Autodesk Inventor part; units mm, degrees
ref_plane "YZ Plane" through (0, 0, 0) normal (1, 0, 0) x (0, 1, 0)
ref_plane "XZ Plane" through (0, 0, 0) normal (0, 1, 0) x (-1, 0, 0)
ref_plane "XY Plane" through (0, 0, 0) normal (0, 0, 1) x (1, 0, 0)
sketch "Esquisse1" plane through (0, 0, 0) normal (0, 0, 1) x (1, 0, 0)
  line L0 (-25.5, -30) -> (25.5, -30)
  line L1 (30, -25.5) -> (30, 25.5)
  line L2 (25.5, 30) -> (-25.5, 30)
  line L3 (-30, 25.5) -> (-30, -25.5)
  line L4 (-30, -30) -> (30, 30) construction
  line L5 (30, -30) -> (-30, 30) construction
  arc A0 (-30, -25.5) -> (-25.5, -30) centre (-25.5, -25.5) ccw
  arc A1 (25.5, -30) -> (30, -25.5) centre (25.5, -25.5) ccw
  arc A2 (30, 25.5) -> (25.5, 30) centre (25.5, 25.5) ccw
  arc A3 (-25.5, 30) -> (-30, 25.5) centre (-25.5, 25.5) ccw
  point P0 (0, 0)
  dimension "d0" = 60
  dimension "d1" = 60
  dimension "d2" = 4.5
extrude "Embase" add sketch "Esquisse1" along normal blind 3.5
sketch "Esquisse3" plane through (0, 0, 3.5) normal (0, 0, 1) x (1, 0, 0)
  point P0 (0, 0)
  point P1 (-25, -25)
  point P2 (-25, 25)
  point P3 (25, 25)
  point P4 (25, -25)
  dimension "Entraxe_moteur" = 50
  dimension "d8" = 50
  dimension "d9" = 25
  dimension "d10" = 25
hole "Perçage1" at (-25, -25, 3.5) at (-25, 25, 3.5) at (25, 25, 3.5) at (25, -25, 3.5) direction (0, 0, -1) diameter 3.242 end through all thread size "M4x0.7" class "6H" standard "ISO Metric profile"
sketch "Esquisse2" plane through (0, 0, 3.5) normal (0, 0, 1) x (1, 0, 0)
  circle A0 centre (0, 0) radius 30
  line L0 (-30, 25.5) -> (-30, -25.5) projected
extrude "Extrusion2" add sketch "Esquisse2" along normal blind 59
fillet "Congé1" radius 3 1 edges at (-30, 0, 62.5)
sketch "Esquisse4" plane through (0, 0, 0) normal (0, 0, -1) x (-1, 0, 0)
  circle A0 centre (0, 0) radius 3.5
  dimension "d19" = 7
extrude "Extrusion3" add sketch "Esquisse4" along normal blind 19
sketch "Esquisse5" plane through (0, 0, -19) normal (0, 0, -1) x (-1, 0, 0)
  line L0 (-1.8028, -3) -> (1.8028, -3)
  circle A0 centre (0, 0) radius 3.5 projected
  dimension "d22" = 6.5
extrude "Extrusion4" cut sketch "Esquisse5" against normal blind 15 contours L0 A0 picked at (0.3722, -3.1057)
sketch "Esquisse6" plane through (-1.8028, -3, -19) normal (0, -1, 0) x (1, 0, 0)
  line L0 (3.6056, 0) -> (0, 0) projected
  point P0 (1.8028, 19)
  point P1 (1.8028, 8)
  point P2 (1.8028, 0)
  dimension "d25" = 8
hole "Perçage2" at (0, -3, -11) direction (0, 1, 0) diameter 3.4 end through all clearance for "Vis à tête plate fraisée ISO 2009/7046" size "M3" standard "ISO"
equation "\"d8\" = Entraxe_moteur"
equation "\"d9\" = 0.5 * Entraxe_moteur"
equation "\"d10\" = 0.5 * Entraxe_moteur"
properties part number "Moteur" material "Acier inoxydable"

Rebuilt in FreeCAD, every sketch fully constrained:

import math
import FreeCAD as App
import Part
import Sketcher

V = App.Vector
Q = App.Units.Quantity


def edges_at(feature, points):
    """Names of the edges that pass closest to the given points."""
    edges = feature.Shape.Edges
    near = lambda p: min(range(len(edges)), key=lambda i: edges[i].distToShape(Part.Vertex(*p))[0])
    return sorted({f"Edge{near(p) + 1}" for p in points})

doc = App.newDocument("Part")
body = doc.addObject("PartDesign::Body", "Body")

sketch1 = body.newObject("Sketcher::SketchObject", "Sketch")
sketch1.AttachmentSupport = (doc.getObject("XY_Plane"), [""])
sketch1.MapMode = "FlatFace"
sketch1.addGeometry(Part.ArcOfCircle(Part.Circle(V(-25.5, -25.5, 0), V(0, 0, 1), 4.5), math.radians(180), math.radians(270)), False)
sketch1.addGeometry(Part.LineSegment(V(-25.5, -30, 0), V(25.5, -30, 0)), False)
sketch1.addGeometry(Part.ArcOfCircle(Part.Circle(V(25.5, -25.5, 0), V(0, 0, 1), 4.5), math.radians(-90), math.radians(0)), False)
sketch1.addGeometry(Part.LineSegment(V(30, -25.5, 0), V(30, 25.5, 0)), False)
sketch1.addGeometry(Part.ArcOfCircle(Part.Circle(V(25.5, 25.5, 0), V(0, 0, 1), 4.5), math.radians(0), math.radians(90)), False)
sketch1.addGeometry(Part.LineSegment(V(25.5, 30, 0), V(-25.5, 30, 0)), False)
sketch1.addGeometry(Part.ArcOfCircle(Part.Circle(V(-25.5, 25.5, 0), V(0, 0, 1), 4.5), math.radians(90), math.radians(180)), False)
sketch1.addGeometry(Part.LineSegment(V(-30, 25.5, 0), V(-30, -25.5, 0)), False)
sketch1.addConstraint(Sketcher.Constraint("Tangent", 0, 2, 1, 1))
sketch1.addConstraint(Sketcher.Constraint("Tangent", 1, 2, 2, 1))
sketch1.addConstraint(Sketcher.Constraint("Tangent", 2, 2, 3, 1))
sketch1.addConstraint(Sketcher.Constraint("Tangent", 3, 2, 4, 1))
sketch1.addConstraint(Sketcher.Constraint("Tangent", 4, 2, 5, 1))
sketch1.addConstraint(Sketcher.Constraint("Tangent", 5, 2, 6, 1))
sketch1.addConstraint(Sketcher.Constraint("Tangent", 6, 2, 7, 1))
sketch1.addConstraint(Sketcher.Constraint("Tangent", 7, 2, 0, 1))
sketch1.addConstraint(Sketcher.Constraint("Horizontal", 1))
sketch1.addConstraint(Sketcher.Constraint("Vertical", 3))
sketch1.addConstraint(Sketcher.Constraint("Horizontal", 5))
sketch1.addConstraint(Sketcher.Constraint("Vertical", 7))
sketch1.addConstraint(Sketcher.Constraint("Equal", 0, 2))
sketch1.addConstraint(Sketcher.Constraint("Equal", 2, 4))
sketch1.addConstraint(Sketcher.Constraint("Equal", 4, 6))
sketch1.addConstraint(Sketcher.Constraint("Symmetric", 0, 3, 4, 3, -1, 1))
sketch1.addConstraint(Sketcher.Constraint("Equal", 5, 3))
sketch1.addConstraint(Sketcher.Constraint("Radius", 0, Q("4.5 mm")))
sketch1.addConstraint(Sketcher.Constraint("DistanceX", 1, 1, 1, 2, Q("51 mm")))
pad1 = body.newObject("PartDesign::Pad", "Pad")
pad1.Profile = sketch1
pad1.Length = 3.5

sketch2 = body.newObject("Sketcher::SketchObject", "Sketch001")
sketch2.AttachmentSupport = (doc.getObject("XY_Plane"), [""])
sketch2.MapMode = "FlatFace"
sketch2.AttachmentOffset = App.Placement(V(0, 0, 3.5), App.Rotation())
sketch2.addGeometry(Part.Circle(V(-25, -25, 0), V(0, 0, 1), 1.6), False)
sketch2.addGeometry(Part.Circle(V(-25, 25, 0), V(0, 0, 1), 1.6), False)
sketch2.addGeometry(Part.Circle(V(25, 25, 0), V(0, 0, 1), 1.6), False)
sketch2.addGeometry(Part.Circle(V(25, -25, 0), V(0, 0, 1), 1.6), False)
sketch2.addConstraint(Sketcher.Constraint("Equal", 0, 1))
sketch2.addConstraint(Sketcher.Constraint("Equal", 1, 2))
sketch2.addConstraint(Sketcher.Constraint("Equal", 2, 3))
sketch2.addConstraint(Sketcher.Constraint("Symmetric", 0, 3, 2, 3, -1, 1))
sketch2.addConstraint(Sketcher.Constraint("Symmetric", 1, 3, 3, 3, -1, 1))
sketch2.addConstraint(Sketcher.Constraint("Symmetric", 1, 3, 2, 3, -2))
sketch2.addConstraint(Sketcher.Constraint("Diameter", 0, Q("3.242 mm")))
sketch2.addConstraint(Sketcher.Constraint("DistanceX", 0, 3, -1, 1, Q("25 mm")))
sketch2.addConstraint(Sketcher.Constraint("DistanceY", 0, 3, -1, 1, Q("25 mm")))
doc.recompute()
hole = body.newObject("PartDesign::Hole", "Hole")
hole.Profile = sketch2
hole.ThreadType = "None"
hole.Diameter = 3.242
hole.DepthType = "ThroughAll"

sketch3 = body.newObject("Sketcher::SketchObject", "Sketch002")
sketch3.AttachmentSupport = (doc.getObject("XY_Plane"), [""])
sketch3.MapMode = "FlatFace"
sketch3.AttachmentOffset = App.Placement(V(0, 0, 3.5), App.Rotation())
sketch3.addGeometry(Part.Circle(V(0, 0, 0), V(0, 0, 1), 30), False)
sketch3.addConstraint(Sketcher.Constraint("Coincident", 0, 3, -1, 1))
sketch3.addConstraint(Sketcher.Constraint("Diameter", 0, Q("60 mm")))
pad2 = body.newObject("PartDesign::Pad", "Pad001")
pad2.Profile = sketch3
pad2.Length = 59
doc.recompute()

fillet = body.newObject("PartDesign::Fillet", "Fillet")
fillet.Base = (pad2, edges_at(pad2, [(-30, 0, 62.5)]))
fillet.Radius = 3

sketch4 = body.newObject("Sketcher::SketchObject", "Sketch003")
sketch4.AttachmentSupport = (doc.getObject("XY_Plane"), [""])
sketch4.MapMode = "FlatFace"
sketch4.addGeometry(Part.Circle(V(0, 0, 0), V(0, 0, 1), 3.5), False)
sketch4.addConstraint(Sketcher.Constraint("Coincident", 0, 3, -1, 1))
sketch4.addConstraint(Sketcher.Constraint("Diameter", 0, Q("7 mm")))
pad3 = body.newObject("PartDesign::Pad", "Pad002")
pad3.Profile = sketch4
pad3.Length = 19
pad3.Reversed = True

sketch5 = body.newObject("Sketcher::SketchObject", "Sketch004")
sketch5.AttachmentSupport = (doc.getObject("XY_Plane"), [""])
sketch5.MapMode = "FlatFace"
sketch5.AttachmentOffset = App.Placement(V(0, 0, -19), App.Rotation())
sketch5.addGeometry(Part.LineSegment(V(-1.8, -3, 0), V(1.8, -3, 0)), False)
sketch5.addGeometry(Part.ArcOfCircle(Part.Circle(V(0, 0, 0), V(0, 0, 1), 3.5), math.radians(-121), math.radians(-59)), False)
sketch5.addConstraint(Sketcher.Constraint("Coincident", 0, 1, 1, 1))
sketch5.addConstraint(Sketcher.Constraint("Coincident", 1, 2, 0, 2))
sketch5.addConstraint(Sketcher.Constraint("Horizontal", 0))
sketch5.addConstraint(Sketcher.Constraint("Coincident", 1, 3, -1, 1))
sketch5.addConstraint(Sketcher.Constraint("Radius", 1, Q("3.5 mm")))
sketch5.addConstraint(Sketcher.Constraint("DistanceY", 0, 1, -1, 1, Q("3 mm")))
pocket1 = body.newObject("PartDesign::Pocket", "Pocket")
pocket1.Profile = sketch5
pocket1.Length = 15
pocket1.Reversed = True

sketch6 = body.newObject("Sketcher::SketchObject", "Sketch005")
sketch6.AttachmentSupport = (doc.getObject("XZ_Plane"), [""])
sketch6.MapMode = "FlatFace"
sketch6.AttachmentOffset = App.Placement(V(0, 0, 3), App.Rotation())
sketch6.addGeometry(Part.Circle(V(0, -11, 0), V(0, 0, 1), 1.7), False)
sketch6.addConstraint(Sketcher.Constraint("PointOnObject", 0, 3, -2))
sketch6.addConstraint(Sketcher.Constraint("Diameter", 0, Q("3.4 mm")))
sketch6.addConstraint(Sketcher.Constraint("DistanceY", 0, 3, -1, 1, Q("11 mm")))
doc.recompute()
hole2 = body.newObject("PartDesign::Hole", "Hole001")
hole2.Profile = sketch6
hole2.ThreadType = "None"
hole2.Diameter = 3.4
hole2.DepthType = "ThroughAll"

doc.recompute()
